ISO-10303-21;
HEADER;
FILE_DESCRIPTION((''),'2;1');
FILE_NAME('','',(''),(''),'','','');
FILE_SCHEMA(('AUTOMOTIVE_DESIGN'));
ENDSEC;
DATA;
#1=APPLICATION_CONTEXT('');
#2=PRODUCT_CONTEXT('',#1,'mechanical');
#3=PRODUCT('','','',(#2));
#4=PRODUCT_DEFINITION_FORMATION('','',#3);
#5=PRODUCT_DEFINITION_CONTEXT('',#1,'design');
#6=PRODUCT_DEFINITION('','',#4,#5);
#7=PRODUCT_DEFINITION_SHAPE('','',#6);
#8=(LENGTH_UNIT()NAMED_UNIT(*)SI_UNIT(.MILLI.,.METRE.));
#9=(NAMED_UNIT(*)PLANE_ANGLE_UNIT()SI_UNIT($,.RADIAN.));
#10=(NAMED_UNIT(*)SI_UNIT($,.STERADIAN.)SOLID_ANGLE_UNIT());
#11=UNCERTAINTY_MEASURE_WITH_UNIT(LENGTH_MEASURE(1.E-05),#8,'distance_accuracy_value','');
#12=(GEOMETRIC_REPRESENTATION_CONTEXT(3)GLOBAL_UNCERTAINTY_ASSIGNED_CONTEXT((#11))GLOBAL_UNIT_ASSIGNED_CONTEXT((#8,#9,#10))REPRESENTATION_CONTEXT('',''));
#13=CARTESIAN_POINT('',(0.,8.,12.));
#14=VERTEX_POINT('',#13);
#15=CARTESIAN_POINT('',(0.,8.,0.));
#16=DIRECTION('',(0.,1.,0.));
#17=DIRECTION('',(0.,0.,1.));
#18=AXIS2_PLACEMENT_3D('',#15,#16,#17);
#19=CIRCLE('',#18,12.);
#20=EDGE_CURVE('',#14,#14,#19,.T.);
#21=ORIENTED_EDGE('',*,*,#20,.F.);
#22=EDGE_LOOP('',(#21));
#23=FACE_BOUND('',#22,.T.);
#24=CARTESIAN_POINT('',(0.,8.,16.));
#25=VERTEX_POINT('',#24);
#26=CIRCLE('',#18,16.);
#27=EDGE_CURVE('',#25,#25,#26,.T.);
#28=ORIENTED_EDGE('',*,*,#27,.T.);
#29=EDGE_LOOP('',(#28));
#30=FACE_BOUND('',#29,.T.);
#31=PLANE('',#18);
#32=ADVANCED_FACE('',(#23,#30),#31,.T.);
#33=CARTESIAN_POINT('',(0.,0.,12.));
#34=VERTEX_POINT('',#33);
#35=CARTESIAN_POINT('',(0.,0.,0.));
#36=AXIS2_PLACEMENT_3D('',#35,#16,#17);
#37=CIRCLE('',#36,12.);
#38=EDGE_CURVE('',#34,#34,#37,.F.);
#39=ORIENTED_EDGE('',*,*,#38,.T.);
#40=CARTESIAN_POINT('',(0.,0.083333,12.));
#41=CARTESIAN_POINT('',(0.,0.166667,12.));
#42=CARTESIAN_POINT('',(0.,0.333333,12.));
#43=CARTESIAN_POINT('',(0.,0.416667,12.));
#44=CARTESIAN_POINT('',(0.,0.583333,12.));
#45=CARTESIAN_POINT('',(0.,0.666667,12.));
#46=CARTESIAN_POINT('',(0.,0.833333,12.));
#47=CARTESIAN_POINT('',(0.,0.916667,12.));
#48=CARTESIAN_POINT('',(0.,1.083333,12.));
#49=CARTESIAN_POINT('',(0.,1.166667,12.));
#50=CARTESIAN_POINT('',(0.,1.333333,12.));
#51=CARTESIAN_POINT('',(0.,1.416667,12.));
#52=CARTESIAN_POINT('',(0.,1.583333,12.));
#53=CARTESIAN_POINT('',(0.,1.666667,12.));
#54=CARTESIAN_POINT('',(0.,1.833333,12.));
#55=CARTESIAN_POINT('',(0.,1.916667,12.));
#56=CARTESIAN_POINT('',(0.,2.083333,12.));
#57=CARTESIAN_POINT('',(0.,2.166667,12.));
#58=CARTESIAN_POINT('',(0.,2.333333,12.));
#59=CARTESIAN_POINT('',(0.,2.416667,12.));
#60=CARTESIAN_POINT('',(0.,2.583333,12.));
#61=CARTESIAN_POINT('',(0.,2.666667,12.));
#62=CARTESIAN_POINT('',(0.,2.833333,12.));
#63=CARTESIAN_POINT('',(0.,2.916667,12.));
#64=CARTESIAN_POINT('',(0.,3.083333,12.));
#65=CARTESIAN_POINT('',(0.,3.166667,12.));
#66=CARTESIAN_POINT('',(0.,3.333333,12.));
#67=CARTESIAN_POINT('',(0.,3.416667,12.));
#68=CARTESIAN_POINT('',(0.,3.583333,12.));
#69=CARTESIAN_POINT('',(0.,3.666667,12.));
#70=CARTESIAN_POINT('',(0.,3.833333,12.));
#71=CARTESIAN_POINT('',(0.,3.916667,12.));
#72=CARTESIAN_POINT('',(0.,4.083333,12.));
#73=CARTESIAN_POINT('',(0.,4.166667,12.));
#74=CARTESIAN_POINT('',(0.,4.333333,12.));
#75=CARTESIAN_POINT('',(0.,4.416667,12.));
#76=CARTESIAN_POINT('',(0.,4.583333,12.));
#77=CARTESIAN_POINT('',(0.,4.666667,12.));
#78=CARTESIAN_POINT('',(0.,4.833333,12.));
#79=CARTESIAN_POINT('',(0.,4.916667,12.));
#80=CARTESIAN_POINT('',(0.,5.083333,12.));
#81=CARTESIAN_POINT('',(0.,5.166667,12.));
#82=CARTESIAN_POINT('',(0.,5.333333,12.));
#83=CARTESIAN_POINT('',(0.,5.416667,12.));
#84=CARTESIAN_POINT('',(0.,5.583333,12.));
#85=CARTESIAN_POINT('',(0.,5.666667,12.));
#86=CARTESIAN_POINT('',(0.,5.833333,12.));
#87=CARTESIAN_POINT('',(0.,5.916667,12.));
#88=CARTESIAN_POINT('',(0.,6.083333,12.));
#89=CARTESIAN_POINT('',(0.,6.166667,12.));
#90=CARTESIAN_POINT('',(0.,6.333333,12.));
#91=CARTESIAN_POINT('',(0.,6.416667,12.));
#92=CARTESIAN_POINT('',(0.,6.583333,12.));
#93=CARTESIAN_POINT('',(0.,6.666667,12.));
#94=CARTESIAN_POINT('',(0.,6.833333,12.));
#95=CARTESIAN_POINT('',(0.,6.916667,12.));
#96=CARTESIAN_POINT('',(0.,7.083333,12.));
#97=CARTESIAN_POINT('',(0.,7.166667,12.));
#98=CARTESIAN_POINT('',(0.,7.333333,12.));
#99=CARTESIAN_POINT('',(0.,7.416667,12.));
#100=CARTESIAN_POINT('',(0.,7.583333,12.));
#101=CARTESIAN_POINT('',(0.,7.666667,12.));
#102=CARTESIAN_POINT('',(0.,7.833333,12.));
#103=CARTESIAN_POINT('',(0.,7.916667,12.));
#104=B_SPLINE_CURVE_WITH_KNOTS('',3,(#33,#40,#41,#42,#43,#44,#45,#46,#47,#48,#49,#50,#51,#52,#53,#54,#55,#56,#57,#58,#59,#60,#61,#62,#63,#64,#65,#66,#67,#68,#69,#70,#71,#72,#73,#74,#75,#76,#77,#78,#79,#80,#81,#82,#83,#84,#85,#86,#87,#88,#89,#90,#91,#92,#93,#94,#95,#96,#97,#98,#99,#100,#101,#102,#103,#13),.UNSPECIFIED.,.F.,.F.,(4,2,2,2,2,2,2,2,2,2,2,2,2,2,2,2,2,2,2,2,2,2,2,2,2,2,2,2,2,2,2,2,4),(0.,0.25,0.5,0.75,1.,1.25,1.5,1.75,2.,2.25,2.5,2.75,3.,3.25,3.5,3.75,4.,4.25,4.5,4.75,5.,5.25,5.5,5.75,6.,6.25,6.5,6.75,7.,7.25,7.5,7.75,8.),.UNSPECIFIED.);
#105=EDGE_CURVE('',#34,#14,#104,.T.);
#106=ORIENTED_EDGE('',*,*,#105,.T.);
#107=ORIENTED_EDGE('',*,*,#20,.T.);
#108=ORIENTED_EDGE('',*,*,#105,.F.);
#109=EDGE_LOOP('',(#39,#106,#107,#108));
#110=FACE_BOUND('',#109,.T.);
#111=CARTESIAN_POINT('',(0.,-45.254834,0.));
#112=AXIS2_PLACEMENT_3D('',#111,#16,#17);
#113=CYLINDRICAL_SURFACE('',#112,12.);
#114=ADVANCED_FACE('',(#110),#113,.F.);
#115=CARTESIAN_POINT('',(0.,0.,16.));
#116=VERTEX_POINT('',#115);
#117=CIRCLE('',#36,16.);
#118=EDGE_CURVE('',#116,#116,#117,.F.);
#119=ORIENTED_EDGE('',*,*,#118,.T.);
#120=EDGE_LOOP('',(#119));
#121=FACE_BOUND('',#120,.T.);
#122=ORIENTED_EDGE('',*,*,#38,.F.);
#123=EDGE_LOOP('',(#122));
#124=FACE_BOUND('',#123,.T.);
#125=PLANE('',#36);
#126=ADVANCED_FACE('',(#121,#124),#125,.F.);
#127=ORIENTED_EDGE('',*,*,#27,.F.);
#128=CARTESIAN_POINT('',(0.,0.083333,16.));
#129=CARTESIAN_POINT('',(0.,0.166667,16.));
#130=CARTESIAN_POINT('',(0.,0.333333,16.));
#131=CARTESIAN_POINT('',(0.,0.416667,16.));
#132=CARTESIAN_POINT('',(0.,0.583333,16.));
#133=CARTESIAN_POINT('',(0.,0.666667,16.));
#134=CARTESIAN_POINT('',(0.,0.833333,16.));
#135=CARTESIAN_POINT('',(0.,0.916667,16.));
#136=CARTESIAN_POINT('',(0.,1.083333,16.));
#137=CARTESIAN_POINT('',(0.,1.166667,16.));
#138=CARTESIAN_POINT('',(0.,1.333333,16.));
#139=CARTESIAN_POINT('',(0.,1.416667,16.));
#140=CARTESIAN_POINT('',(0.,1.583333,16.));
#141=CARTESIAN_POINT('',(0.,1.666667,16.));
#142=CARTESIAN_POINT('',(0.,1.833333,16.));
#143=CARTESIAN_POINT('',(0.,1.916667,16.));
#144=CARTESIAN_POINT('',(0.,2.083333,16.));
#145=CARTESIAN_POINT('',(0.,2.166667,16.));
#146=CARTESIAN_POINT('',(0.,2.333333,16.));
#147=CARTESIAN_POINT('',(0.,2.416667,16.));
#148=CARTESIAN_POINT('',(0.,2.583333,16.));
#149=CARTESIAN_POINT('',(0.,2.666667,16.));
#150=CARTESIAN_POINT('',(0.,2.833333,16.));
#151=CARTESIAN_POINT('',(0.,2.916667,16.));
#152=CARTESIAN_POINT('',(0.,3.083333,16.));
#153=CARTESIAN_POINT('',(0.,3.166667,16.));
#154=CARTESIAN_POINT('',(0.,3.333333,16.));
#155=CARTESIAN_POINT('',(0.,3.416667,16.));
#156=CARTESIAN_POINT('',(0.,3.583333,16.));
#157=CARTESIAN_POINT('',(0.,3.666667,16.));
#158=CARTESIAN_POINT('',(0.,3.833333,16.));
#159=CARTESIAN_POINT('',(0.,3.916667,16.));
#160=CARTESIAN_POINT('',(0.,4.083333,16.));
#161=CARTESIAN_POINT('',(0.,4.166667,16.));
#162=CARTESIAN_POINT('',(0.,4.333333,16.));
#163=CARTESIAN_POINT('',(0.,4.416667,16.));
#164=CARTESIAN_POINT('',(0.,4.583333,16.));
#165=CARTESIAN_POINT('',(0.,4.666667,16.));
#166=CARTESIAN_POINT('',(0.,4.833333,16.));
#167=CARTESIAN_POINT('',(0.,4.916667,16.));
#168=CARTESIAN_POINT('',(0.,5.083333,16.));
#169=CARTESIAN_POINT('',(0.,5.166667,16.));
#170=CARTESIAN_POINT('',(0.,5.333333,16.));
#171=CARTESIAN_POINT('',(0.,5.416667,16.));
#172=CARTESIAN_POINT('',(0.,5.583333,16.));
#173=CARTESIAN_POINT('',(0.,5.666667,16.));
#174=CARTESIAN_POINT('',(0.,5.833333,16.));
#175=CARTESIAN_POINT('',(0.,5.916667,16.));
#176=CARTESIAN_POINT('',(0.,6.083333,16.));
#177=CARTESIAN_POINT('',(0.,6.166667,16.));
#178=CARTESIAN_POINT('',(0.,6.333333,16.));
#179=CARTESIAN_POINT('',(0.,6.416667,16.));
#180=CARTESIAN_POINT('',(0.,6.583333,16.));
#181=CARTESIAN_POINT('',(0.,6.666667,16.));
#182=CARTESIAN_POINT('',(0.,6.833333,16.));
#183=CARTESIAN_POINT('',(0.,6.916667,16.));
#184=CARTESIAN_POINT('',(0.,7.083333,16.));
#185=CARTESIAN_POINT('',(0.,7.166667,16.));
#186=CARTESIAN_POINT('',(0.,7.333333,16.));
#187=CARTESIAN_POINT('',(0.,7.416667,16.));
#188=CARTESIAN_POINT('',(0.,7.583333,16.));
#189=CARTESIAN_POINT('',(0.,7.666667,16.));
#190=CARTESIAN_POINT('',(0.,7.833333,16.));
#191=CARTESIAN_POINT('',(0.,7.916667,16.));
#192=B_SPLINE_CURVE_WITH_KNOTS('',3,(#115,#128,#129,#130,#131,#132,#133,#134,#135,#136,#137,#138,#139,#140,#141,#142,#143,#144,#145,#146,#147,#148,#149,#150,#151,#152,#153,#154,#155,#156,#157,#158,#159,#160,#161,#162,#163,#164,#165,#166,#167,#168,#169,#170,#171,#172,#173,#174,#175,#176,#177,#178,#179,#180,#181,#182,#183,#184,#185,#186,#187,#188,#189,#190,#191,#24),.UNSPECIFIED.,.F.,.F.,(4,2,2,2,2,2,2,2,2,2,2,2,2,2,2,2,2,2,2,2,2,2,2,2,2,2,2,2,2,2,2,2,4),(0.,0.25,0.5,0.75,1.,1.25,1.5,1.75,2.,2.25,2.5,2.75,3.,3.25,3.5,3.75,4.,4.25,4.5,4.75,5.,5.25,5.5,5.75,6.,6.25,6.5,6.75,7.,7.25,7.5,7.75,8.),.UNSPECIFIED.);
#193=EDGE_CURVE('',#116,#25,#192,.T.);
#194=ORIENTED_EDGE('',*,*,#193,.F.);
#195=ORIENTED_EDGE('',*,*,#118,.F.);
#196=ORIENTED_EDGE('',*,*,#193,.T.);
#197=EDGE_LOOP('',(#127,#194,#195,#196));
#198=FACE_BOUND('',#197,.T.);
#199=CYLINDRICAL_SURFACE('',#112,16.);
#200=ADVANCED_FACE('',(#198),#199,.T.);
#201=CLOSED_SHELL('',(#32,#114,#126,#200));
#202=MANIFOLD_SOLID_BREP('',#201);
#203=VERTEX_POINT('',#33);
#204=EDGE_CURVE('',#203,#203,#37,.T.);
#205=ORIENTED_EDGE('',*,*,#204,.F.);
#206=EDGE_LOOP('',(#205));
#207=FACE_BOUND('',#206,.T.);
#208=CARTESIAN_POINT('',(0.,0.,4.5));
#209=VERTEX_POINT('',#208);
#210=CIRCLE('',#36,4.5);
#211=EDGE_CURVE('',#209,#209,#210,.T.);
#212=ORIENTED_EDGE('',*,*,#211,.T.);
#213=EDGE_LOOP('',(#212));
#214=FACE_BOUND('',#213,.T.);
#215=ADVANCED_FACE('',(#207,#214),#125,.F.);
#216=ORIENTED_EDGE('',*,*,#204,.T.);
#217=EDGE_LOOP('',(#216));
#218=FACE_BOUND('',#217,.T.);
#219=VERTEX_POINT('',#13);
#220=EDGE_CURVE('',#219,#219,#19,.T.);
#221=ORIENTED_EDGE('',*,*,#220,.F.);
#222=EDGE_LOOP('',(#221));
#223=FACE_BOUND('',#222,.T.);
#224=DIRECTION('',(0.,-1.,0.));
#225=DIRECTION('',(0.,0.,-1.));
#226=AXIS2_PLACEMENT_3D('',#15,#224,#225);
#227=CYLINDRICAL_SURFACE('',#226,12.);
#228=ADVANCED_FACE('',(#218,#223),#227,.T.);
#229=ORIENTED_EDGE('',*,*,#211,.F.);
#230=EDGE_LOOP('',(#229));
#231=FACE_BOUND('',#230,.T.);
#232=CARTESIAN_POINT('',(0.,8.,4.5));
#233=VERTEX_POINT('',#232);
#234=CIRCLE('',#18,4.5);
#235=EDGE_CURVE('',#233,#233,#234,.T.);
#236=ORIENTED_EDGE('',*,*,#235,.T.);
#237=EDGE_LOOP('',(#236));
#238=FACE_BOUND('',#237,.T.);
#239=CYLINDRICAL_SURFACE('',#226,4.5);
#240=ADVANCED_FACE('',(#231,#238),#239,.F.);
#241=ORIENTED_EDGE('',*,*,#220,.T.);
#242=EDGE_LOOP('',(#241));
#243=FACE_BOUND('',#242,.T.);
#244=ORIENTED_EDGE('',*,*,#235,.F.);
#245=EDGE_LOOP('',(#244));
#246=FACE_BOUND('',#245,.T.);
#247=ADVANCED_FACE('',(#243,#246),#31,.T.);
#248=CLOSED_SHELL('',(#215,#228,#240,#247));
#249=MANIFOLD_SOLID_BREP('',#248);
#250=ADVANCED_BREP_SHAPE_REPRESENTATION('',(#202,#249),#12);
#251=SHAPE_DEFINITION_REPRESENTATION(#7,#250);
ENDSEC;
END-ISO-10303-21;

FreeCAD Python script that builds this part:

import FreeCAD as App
import Part
import Sketcher

V = App.Vector

doc = App.newDocument("Part")
params = doc.addObject("Spreadsheet::Sheet", "Params")
for row, (alias, value) in enumerate([
    ("sketch1_diameter", "24 mm"),
    ("sketch1_diameter2", "9 mm"),
    ("pad1_length", "8 mm"),
    ("sketch2_diameter", "32 mm"),
    ("sketch2_diameter2", "24 mm"),
    ("pad2_length", "8 mm"),
], start=1):
    params.set(f"A{row}", alias)
    params.set(f"B{row}", "=" + value)
    params.setAlias(f"B{row}", alias)

body = doc.addObject("PartDesign::Body", "Body")

# Sketch on XZ plane
sketch1 = body.newObject("Sketcher::SketchObject", "Sketch")
sketch1.AttachmentSupport = (doc.getObject("XZ_Plane"), [""])
sketch1.MapMode = "FlatFace"
sketch1.addGeometry(Part.Circle(V(0, 0, 0), V(0, 0, 1), 12), False)
sketch1.addGeometry(Part.Circle(V(0, 0, 0), V(0, 0, 1), 4.5), False)
sketch1.addConstraint(Sketcher.Constraint("Coincident", 0, 3, -1, 1))
sketch1.addConstraint(Sketcher.Constraint("Coincident", 1, 3, -1, 1))
sketch1.addConstraint(Sketcher.Constraint("Diameter", 0, 24.0))
sketch1.addConstraint(Sketcher.Constraint("Diameter", 1, 9.0))
sketch1.setExpression("Constraints[2]", "Params.sketch1_diameter")
sketch1.setExpression("Constraints[3]", "Params.sketch1_diameter2")
pad1 = body.newObject("PartDesign::Pad", "Pad")
pad1.Profile = sketch1
pad1.setExpression("Length", "Params.pad1_length")
pad1.Reversed = True
body2 = doc.addObject("PartDesign::Body", "Body001")

# Sketch on XZ plane
sketch2 = body2.newObject("Sketcher::SketchObject", "Sketch001")
sketch2.AttachmentSupport = (doc.getObject("XZ_Plane001"), [""])
sketch2.MapMode = "FlatFace"
sketch2.AttachmentOffset = App.Placement(V(0, 0, -8), App.Rotation())
sketch2.addGeometry(Part.Circle(V(0, 0, 0), V(0, 0, 1), 16), False)
sketch2.addGeometry(Part.Circle(V(0, 0, 0), V(0, 0, 1), 12), False)
sketch2.addConstraint(Sketcher.Constraint("Coincident", 0, 3, -1, 1))
sketch2.addConstraint(Sketcher.Constraint("Coincident", 1, 3, -1, 1))
sketch2.addConstraint(Sketcher.Constraint("Diameter", 0, 32.0))
sketch2.addConstraint(Sketcher.Constraint("Diameter", 1, 24.0))
sketch2.setExpression("Constraints[2]", "Params.sketch2_diameter")
sketch2.setExpression("Constraints[3]", "Params.sketch2_diameter2")
pad2 = body2.newObject("PartDesign::Pad", "Pad001")
pad2.Profile = sketch2
pad2.setExpression("Length", "Params.pad2_length")

doc.recompute()
